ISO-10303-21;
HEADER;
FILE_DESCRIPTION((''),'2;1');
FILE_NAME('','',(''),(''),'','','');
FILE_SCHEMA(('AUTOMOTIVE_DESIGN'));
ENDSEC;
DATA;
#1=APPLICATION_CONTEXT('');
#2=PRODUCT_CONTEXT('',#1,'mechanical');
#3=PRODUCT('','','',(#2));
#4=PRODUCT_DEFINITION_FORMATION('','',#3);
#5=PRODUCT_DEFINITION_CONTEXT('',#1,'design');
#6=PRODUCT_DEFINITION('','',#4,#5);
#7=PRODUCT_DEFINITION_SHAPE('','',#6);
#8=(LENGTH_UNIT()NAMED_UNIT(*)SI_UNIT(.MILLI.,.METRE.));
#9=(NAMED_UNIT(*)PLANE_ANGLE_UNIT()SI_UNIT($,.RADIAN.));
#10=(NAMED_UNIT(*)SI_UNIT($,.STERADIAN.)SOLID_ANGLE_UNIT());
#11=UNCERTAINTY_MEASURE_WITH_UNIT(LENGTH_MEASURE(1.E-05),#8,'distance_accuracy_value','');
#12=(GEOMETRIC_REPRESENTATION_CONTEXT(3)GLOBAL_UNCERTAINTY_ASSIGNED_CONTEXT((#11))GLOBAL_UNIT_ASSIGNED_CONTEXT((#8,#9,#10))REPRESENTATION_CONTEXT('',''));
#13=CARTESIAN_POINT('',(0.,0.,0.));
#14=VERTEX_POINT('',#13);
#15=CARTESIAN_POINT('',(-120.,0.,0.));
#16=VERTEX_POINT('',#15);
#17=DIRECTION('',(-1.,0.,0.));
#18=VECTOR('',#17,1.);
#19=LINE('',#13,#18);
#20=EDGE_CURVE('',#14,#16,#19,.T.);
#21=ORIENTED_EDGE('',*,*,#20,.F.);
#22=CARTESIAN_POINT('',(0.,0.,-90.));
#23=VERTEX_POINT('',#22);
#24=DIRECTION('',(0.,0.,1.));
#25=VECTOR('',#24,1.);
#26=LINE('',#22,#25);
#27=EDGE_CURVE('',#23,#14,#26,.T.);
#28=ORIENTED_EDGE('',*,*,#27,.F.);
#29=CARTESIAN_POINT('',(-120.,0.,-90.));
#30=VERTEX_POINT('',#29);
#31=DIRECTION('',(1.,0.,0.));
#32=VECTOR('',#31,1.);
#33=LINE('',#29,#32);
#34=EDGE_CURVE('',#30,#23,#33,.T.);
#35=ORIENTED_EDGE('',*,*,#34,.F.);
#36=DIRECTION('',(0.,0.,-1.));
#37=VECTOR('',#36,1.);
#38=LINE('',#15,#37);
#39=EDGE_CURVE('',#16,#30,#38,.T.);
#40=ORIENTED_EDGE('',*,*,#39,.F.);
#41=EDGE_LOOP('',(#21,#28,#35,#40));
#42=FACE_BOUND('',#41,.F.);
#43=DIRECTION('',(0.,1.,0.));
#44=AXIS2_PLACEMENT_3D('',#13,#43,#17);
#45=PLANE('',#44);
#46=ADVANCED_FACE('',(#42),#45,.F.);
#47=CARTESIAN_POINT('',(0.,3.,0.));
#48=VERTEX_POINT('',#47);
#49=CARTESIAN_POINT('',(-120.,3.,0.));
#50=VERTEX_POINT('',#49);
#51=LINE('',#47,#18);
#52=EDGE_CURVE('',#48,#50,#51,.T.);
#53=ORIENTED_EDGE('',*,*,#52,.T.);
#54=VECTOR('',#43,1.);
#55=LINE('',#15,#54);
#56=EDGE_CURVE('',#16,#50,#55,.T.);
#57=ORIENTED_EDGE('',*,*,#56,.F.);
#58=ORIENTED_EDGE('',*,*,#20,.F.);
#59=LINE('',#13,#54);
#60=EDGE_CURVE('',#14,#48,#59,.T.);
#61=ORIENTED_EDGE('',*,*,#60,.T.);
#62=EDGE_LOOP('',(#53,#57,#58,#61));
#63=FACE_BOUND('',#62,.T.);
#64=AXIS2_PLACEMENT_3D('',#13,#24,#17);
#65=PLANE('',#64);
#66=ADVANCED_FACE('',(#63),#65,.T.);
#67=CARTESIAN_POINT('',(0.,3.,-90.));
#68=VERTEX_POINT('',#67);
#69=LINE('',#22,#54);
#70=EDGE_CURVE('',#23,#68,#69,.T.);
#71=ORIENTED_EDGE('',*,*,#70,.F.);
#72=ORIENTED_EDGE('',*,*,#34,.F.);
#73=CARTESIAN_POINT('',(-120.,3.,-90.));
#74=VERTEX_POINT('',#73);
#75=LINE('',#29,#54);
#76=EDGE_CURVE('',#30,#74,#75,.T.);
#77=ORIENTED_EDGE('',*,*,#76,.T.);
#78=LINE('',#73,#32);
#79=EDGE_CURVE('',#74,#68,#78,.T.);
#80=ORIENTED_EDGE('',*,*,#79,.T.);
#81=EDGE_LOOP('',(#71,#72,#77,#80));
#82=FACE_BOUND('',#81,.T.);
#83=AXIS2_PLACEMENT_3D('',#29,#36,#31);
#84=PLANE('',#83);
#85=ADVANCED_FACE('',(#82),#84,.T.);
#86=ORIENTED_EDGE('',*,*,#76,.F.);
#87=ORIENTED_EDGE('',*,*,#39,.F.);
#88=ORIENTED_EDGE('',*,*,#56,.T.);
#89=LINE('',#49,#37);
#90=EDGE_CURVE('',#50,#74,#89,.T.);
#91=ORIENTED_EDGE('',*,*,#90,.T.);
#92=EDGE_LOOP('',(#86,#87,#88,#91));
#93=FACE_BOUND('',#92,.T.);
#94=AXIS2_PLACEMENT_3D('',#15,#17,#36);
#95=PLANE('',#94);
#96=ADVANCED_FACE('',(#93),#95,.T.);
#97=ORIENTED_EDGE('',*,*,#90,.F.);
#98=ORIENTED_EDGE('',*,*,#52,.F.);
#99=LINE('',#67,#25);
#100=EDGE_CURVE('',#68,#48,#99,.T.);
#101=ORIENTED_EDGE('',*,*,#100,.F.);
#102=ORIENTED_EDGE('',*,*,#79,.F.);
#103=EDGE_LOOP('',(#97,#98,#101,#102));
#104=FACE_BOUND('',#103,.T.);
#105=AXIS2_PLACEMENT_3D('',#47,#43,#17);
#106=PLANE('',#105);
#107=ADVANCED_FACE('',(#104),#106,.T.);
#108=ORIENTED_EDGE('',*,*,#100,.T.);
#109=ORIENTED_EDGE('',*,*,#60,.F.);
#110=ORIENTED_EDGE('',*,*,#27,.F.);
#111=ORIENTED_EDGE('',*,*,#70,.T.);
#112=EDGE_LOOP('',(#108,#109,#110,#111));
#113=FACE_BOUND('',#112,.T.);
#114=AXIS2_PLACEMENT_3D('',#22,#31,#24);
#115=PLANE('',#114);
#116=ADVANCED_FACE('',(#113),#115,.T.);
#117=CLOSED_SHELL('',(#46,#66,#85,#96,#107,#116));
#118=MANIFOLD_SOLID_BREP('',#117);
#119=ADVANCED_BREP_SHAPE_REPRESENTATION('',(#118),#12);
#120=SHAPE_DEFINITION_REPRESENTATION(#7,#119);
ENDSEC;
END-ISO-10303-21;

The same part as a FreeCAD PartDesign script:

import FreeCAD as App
import Part
import Sketcher

V = App.Vector

doc = App.newDocument("Part")
body = doc.addObject("PartDesign::Body", "Body")

# Sketch on XZ plane
sketch1 = doc.addObject("Sketcher::SketchObject", "Sketch")
body.addObject(sketch1)
sketch1.AttachmentSupport = (doc.XZ_Plane, [""])
sketch1.MapMode = "FlatFace"
sketch1.addGeometry(Part.LineSegment(V(-120, 0, 0), V(0, 0, 0)), False)
sketch1.addGeometry(Part.LineSegment(V(0, 0, 0), V(0, -90, 0)), False)
sketch1.addGeometry(Part.LineSegment(V(0, -90, 0), V(-120, -90, 0)), False)
sketch1.addGeometry(Part.LineSegment(V(-120, -90, 0), V(-120, 0, 0)), False)
sketch1.addConstraint(Sketcher.Constraint("Coincident", 0, 2, 1, 1))
sketch1.addConstraint(Sketcher.Constraint("Coincident", 1, 2, 2, 1))
sketch1.addConstraint(Sketcher.Constraint("Coincident", 2, 2, 3, 1))
sketch1.addConstraint(Sketcher.Constraint("Coincident", 3, 2, 0, 1))
sketch1.addConstraint(Sketcher.Constraint("Horizontal", 0))
sketch1.addConstraint(Sketcher.Constraint("Vertical", 1))
sketch1.addConstraint(Sketcher.Constraint("Horizontal", 2))
sketch1.addConstraint(Sketcher.Constraint("Vertical", 3))
sketch1.addConstraint(Sketcher.Constraint("Coincident", 0, 2, -1, 1))
sketch1.addConstraint(Sketcher.Constraint("DistanceX", 0, 1, 0, 2, 120.0))
sketch1.addConstraint(Sketcher.Constraint("DistanceY", 1, 2, 1, 1, 90.0))
pad1 = doc.addObject("PartDesign::Pad", "Pad")
body.addObject(pad1)
pad1.Profile = sketch1
pad1.Length = 3
pad1.Reversed = True

doc.recompute()
